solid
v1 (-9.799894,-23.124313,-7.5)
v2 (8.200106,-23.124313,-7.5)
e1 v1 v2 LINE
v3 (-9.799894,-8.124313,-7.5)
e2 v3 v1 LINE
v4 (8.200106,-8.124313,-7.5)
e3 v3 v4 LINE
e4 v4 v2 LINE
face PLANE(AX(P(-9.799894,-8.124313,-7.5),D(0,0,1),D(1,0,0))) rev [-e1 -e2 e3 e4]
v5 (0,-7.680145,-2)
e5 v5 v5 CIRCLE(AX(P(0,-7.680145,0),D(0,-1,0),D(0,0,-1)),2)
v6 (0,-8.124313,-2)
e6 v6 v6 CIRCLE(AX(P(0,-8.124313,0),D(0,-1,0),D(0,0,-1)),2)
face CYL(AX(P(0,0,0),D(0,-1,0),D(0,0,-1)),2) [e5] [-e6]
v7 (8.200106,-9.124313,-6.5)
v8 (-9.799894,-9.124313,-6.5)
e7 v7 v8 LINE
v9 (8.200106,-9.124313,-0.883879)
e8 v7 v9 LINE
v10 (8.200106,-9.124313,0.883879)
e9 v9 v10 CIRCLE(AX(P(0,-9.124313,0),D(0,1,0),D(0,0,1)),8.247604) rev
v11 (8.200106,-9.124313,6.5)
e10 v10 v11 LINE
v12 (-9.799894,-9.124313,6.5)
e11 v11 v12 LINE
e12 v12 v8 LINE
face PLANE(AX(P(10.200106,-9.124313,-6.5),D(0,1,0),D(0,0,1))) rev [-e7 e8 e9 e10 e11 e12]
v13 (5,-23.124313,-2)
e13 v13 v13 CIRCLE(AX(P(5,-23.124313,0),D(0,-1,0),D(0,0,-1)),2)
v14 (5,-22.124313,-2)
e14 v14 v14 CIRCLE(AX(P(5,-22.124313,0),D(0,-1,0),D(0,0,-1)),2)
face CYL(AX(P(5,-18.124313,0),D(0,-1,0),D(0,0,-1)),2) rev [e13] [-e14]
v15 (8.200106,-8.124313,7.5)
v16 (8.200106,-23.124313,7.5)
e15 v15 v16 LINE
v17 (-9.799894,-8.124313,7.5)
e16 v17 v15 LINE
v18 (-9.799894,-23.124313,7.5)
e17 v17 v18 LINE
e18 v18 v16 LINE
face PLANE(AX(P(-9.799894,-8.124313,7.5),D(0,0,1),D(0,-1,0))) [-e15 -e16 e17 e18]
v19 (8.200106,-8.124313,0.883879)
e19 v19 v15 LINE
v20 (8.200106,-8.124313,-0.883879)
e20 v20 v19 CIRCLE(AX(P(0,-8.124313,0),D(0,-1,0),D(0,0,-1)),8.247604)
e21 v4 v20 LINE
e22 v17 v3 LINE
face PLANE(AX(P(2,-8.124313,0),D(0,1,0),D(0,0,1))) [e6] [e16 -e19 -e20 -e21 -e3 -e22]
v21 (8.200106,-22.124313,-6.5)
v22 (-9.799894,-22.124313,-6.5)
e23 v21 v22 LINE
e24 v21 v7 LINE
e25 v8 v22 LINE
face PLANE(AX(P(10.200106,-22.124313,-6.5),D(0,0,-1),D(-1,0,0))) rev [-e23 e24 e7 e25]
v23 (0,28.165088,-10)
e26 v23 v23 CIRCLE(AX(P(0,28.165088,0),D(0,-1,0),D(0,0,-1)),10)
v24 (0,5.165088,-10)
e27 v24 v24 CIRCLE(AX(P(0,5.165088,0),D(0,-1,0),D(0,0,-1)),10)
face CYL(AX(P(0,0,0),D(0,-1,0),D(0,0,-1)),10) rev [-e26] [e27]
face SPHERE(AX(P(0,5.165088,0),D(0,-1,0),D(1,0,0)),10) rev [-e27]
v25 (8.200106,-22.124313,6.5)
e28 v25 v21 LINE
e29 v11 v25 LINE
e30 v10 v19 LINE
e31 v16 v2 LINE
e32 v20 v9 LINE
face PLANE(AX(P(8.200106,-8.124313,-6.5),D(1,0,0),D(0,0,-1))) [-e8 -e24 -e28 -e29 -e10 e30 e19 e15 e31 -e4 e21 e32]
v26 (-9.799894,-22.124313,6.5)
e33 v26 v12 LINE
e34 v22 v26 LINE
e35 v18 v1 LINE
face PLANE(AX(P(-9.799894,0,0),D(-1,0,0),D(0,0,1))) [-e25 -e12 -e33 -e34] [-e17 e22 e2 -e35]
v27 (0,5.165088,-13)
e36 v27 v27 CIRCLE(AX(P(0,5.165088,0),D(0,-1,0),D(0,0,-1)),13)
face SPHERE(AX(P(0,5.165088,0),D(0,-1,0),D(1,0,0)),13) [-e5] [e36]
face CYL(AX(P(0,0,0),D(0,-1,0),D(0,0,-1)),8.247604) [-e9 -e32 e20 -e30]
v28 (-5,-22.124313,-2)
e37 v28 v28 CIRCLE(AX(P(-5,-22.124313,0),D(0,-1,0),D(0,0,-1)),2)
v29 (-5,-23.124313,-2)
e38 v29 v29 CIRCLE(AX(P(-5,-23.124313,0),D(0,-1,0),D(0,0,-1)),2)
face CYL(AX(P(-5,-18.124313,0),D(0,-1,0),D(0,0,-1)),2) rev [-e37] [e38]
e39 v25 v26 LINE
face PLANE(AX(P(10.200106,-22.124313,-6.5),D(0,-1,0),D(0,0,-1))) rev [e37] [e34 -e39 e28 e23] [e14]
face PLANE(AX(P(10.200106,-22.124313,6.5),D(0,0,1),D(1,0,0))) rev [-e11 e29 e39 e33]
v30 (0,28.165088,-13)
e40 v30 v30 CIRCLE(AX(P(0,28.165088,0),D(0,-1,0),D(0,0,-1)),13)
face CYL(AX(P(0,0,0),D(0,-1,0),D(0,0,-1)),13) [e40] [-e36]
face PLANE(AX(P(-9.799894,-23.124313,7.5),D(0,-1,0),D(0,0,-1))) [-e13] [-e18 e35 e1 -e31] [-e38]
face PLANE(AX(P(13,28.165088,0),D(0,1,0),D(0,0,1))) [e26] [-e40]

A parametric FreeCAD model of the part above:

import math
import FreeCAD as App
import Part
import Sketcher
Q = App.Units.Quantity


def add_polygon(sketch, points):
    """Adds a closed chain of lines whose ends are joined by coincident constraints."""
    first, n = sketch.GeometryCount, len(points)
    for a, b in zip(points, points[1:] + points[:1]):
        sketch.addGeometry(Part.LineSegment(App.Vector(*a, 0), App.Vector(*b, 0)), False)
    for i in range(n):
        sketch.addConstraint(Sketcher.Constraint("Coincident", first + i, 2, first + (i + 1) % n, 1))

doc = App.newDocument("Part")
body = doc.addObject("PartDesign::Body", "Body")

# Sketch on XY plane
sketch1 = doc.addObject("Sketcher::SketchObject", "Sketch")
body.addObject(sketch1)
sketch1.AttachmentSupport = (doc.XY_Plane, [""])
sketch1.MapMode = "FlatFace"
sketch1.addGeometry([
    Part.ArcOfCircle(Part.Circle(App.Vector(0, 5.17, 0), App.Vector(0, 0, 1), 10), math.radians(-90), math.radians(0)),  # 0
    Part.LineSegment(App.Vector(0, -4.83, 0), App.Vector(0, -11.12, 0)),  # 1
    Part.LineSegment(App.Vector(0, -11.12, 0), App.Vector(8.25, -11.12, 0)),  # 2
    Part.LineSegment(App.Vector(8.25, -11.12, 0), App.Vector(8.25, -8.12, 0)),  # 3
    Part.LineSegment(App.Vector(8.25, -8.12, 0), App.Vector(2, -8.12, 0)),  # 4
    Part.LineSegment(App.Vector(2, -8.12, 0), App.Vector(2, -7.68, 0)),  # 5
    Part.ArcOfCircle(Part.Circle(App.Vector(0, 5.17, 0), App.Vector(0, 0, 1), 13), math.radians(-81), math.radians(0)),  # 6
    Part.LineSegment(App.Vector(13, 5.17, 0), App.Vector(13, 28.17, 0)),  # 7
    Part.LineSegment(App.Vector(13, 28.17, 0), App.Vector(10, 28.17, 0)),  # 8
    Part.LineSegment(App.Vector(10, 28.17, 0), App.Vector(10, 5.17, 0)),  # 9
], False)
sketch1.addConstraint([
    Sketcher.Constraint("Coincident", 0, 1, 1, 1),
    Sketcher.Constraint("Coincident", 1, 2, 2, 1),
    Sketcher.Constraint("Coincident", 2, 2, 3, 1),
    Sketcher.Constraint("Coincident", 3, 2, 4, 1),
    Sketcher.Constraint("Coincident", 4, 2, 5, 1),
    Sketcher.Constraint("Coincident", 5, 2, 6, 1),
    Sketcher.Constraint("Tangent", 6, 2, 7, 1),
    Sketcher.Constraint("Coincident", 7, 2, 8, 1),
    Sketcher.Constraint("Coincident", 8, 2, 9, 1),
    Sketcher.Constraint("Tangent", 9, 2, 0, 2),
    Sketcher.Constraint("Vertical", 1),
    Sketcher.Constraint("Horizontal", 2),
    Sketcher.Constraint("Vertical", 3),
    Sketcher.Constraint("Horizontal", 4),
    Sketcher.Constraint("Vertical", 5),
    Sketcher.Constraint("Vertical", 7),
    Sketcher.Constraint("Horizontal", 8),
    Sketcher.Constraint("Vertical", 9),
    Sketcher.Constraint("Coincident", 6, 3, 0, 3),
    Sketcher.Constraint("PointOnObject", 0, 3, -2),
    Sketcher.Constraint("PointOnObject", 0, 1, -2),
    Sketcher.Constraint("Equal", 8, 3),
    Sketcher.Constraint("Radius", 0, Q("10 mm")),
    Sketcher.Constraint("Radius", 6, Q("13 mm")),
    Sketcher.Constraint("DistanceY", 7, 1, 7, 2, Q("23 mm")),
    Sketcher.Constraint("DistanceX", -1, 1, 4, 2, Q("2 mm")),
    Sketcher.Constraint("DistanceY", 1, 2, 1, 1, Q("6.2894 mm")),
    Sketcher.Constraint("DistanceX", 2, 1, 2, 2, Q("8.247604 mm")),
    Sketcher.Constraint("DistanceY", -1, 1, 0, 3, Q("5.165088 mm")),
])
revolution = doc.addObject("PartDesign::Revolution", "Revolution")
body.addObject(revolution)
revolution.Profile = sketch1
revolution.ReferenceAxis = (sketch1, ["V_Axis"])
revolution.Angle = 360

# Sketch on XZ plane
sketch2 = doc.addObject("Sketcher::SketchObject", "Sketch001")
body.addObject(sketch2)
sketch2.AttachmentSupport = (doc.XZ_Plane, [""])
sketch2.MapMode = "FlatFace"
sketch2.AttachmentOffset = App.Placement(App.Vector(0, 0, 11.124313), App.Rotation())
add_polygon(sketch2, [(-8, 6), (-8, -6), (8, -6), (8, 6)])  # lines 0-3
sketch2.addConstraint([
    Sketcher.Constraint("Vertical", 0),
    Sketcher.Constraint("Horizontal", 1),
    Sketcher.Constraint("Vertical", 2),
    Sketcher.Constraint("Horizontal", 3),
    Sketcher.Constraint("Symmetric", 0, 2, 2, 2, -1, 1),
    Sketcher.Constraint("DistanceY", 0, 2, 0, 1, Q("13 mm")),
    Sketcher.Constraint("DistanceX", 1, 1, 1, 2, Q("16.400211 mm")),
])
pad1 = doc.addObject("PartDesign::Pad", "Pad")
body.addObject(pad1)
pad1.Profile = sketch2
pad1.Length = 3
pad1.Reversed = True

# Sketch on XZ plane
sketch3 = doc.addObject("Sketcher::SketchObject", "Sketch002")
body.addObject(sketch3)
sketch3.AttachmentSupport = (doc.XZ_Plane, [""])
sketch3.MapMode = "FlatFace"
sketch3.AttachmentOffset = App.Placement(App.Vector(0, 0, 11.124313), App.Rotation())
add_polygon(sketch3, [(-8.2, 8.9), (-8.2, 6.5), (8.2, 6.5), (8.2, 8.9)])  # lines 0-3
add_polygon(sketch3, [(-8.2, -6.5), (-8.2, -8.9), (8.2, -8.9), (8.2, -6.5)])  # lines 4-7
sketch3.addConstraint([
    Sketcher.Constraint("Vertical", 0),
    Sketcher.Constraint("Horizontal", 1),
    Sketcher.Constraint("Vertical", 2),
    Sketcher.Constraint("Horizontal", 3),
    Sketcher.Constraint("Vertical", 4),
    Sketcher.Constraint("Horizontal", 5),
    Sketcher.Constraint("Vertical", 6),
    Sketcher.Constraint("Horizontal", 7),
    Sketcher.Constraint("Vertical", 3, 2, 4, 2),
    Sketcher.Constraint("Vertical", 2, 2, 5, 2),
    Sketcher.Constraint("DistanceY", -1, 1, 0, 2, Q("6.5 mm")),
    Sketcher.Constraint("DistanceY", 4, 2, 4, 1, Q("2.320561 mm")),
    Sketcher.Constraint("DistanceX", 1, 1, 1, 2, Q("16.430846 mm")),
    Sketcher.Constraint("DistanceY", 0, 2, 0, 1, Q("2.401527 mm")),
    Sketcher.Constraint("DistanceX", -1, 1, 1, 2, Q("8.23074 mm")),
    Sketcher.Constraint("DistanceY", 4, 2, -1, 1, Q("8.865268 mm")),
])
pocket1 = doc.addObject("PartDesign::Pocket", "Pocket")
body.addObject(pocket1)
pocket1.Profile = sketch3
pocket1.Length = 3

# Sketch on XZ plane
sketch4 = doc.addObject("Sketcher::SketchObject", "Sketch003")
body.addObject(sketch4)
sketch4.AttachmentSupport = (doc.XZ_Plane, [""])
sketch4.MapMode = "FlatFace"
sketch4.AttachmentOffset = App.Placement(App.Vector(0, 0, 11.124313), App.Rotation())
sketch4.addGeometry([
    Part.Circle(App.Vector(5, 0, 0), App.Vector(0, 0, 1), 2),
    Part.Circle(App.Vector(-5, 0, 0), App.Vector(0, 0, 1), 2),
], False)
sketch4.addConstraint([
    Sketcher.Constraint("Equal", 0, 1),
    Sketcher.Constraint("Symmetric", 0, 3, 1, 3, -1, 1),
    Sketcher.Constraint("PointOnObject", 0, 3, -1),
    Sketcher.Constraint("Diameter", 0, Q("4 mm")),
    Sketcher.Constraint("DistanceX", -1, 1, 0, 3, Q("5 mm")),
])
pocket2 = doc.addObject("PartDesign::Pocket", "Pocket001")
body.addObject(pocket2)
pocket2.Profile = sketch4
pocket2.Length = 3

# Sketch on YZ plane
sketch5 = doc.addObject("Sketcher::SketchObject", "Sketch004")
body.addObject(sketch5)
sketch5.AttachmentSupport = (doc.YZ_Plane, [""])
sketch5.MapMode = "FlatFace"
sketch5.AttachmentOffset = App.Placement(App.Vector(0, 0, 8.200106), App.Rotation())
add_polygon(sketch5, [(-8, 8), (-23, 8), (-23, -8), (-8, -8)])  # lines 0-3
sketch5.addConstraint([
    Sketcher.Constraint("Horizontal", 0),
    Sketcher.Constraint("Vertical", 1),
    Sketcher.Constraint("Horizontal", 2),
    Sketcher.Constraint("Vertical", 3),
    Sketcher.Constraint("Equal", 2, 1),
    Sketcher.Constraint("DistanceX", 0, 2, 0, 1, Q("15 mm")),
    Sketcher.Constraint("DistanceY", -1, 1, 0, 2, Q("7.5 mm")),
    Sketcher.Constraint("DistanceX", 0, 2, -1, 1, Q("23.124313 mm")),
])
pad2 = doc.addObject("PartDesign::Pad", "Pad001")
body.addObject(pad2)
pad2.Profile = sketch5
pad2.Length = 18
pad2.Reversed = True

# Sketch on YZ plane
sketch6 = doc.addObject("Sketcher::SketchObject", "Sketch005")
body.addObject(sketch6)
sketch6.AttachmentSupport = (doc.YZ_Plane, [""])
sketch6.MapMode = "FlatFace"
sketch6.AttachmentOffset = App.Placement(App.Vector(0, 0, -9.799894), App.Rotation())
add_polygon(sketch6, [(-9, -6), (-22, -6), (-22, 6), (-9, 6)])  # lines 0-3
sketch6.addConstraint([
    Sketcher.Constraint("Horizontal", 0),
    Sketcher.Constraint("Vertical", 1),
    Sketcher.Constraint("Horizontal", 2),
    Sketcher.Constraint("Vertical", 3),
    Sketcher.Constraint("Equal", 2, 1),
    Sketcher.Constraint("DistanceX", 0, 2, 0, 1, Q("13 mm")),
    Sketcher.Constraint("DistanceY", 0, 2, -1, 1, Q("6.5 mm")),
    Sketcher.Constraint("DistanceX", 0, 2, -1, 1, Q("22.124313 mm")),
])
pocket3 = doc.addObject("PartDesign::Pocket", "Pocket002")
body.addObject(pocket3)
pocket3.Profile = sketch6
pocket3.Length = 20
pocket3.Reversed = True

# Sketch on XZ plane
sketch7 = doc.addObject("Sketcher::SketchObject", "Sketch006")
body.addObject(sketch7)
sketch7.AttachmentSupport = (doc.XZ_Plane, [""])
sketch7.MapMode = "FlatFace"
sketch7.AttachmentOffset = App.Placement(App.Vector(0, 0, 23.124313), App.Rotation())
sketch7.addGeometry([
    Part.Circle(App.Vector(-5, 0, 0), App.Vector(0, 0, 1), 2),
    Part.Circle(App.Vector(5, 0, 0), App.Vector(0, 0, 1), 2),
], False)
sketch7.addConstraint([
    Sketcher.Constraint("Equal", 0, 1),
    Sketcher.Constraint("Symmetric", 0, 3, 1, 3, -1, 1),
    Sketcher.Constraint("PointOnObject", 0, 3, -1),
    Sketcher.Constraint("Diameter", 0, Q("4 mm")),
    Sketcher.Constraint("DistanceX", 0, 3, -1, 1, Q("5 mm")),
])
pocket4 = doc.addObject("PartDesign::Pocket", "Pocket003")
body.addObject(pocket4)
pocket4.Profile = sketch7
pocket4.Length = 5

doc.recompute()
